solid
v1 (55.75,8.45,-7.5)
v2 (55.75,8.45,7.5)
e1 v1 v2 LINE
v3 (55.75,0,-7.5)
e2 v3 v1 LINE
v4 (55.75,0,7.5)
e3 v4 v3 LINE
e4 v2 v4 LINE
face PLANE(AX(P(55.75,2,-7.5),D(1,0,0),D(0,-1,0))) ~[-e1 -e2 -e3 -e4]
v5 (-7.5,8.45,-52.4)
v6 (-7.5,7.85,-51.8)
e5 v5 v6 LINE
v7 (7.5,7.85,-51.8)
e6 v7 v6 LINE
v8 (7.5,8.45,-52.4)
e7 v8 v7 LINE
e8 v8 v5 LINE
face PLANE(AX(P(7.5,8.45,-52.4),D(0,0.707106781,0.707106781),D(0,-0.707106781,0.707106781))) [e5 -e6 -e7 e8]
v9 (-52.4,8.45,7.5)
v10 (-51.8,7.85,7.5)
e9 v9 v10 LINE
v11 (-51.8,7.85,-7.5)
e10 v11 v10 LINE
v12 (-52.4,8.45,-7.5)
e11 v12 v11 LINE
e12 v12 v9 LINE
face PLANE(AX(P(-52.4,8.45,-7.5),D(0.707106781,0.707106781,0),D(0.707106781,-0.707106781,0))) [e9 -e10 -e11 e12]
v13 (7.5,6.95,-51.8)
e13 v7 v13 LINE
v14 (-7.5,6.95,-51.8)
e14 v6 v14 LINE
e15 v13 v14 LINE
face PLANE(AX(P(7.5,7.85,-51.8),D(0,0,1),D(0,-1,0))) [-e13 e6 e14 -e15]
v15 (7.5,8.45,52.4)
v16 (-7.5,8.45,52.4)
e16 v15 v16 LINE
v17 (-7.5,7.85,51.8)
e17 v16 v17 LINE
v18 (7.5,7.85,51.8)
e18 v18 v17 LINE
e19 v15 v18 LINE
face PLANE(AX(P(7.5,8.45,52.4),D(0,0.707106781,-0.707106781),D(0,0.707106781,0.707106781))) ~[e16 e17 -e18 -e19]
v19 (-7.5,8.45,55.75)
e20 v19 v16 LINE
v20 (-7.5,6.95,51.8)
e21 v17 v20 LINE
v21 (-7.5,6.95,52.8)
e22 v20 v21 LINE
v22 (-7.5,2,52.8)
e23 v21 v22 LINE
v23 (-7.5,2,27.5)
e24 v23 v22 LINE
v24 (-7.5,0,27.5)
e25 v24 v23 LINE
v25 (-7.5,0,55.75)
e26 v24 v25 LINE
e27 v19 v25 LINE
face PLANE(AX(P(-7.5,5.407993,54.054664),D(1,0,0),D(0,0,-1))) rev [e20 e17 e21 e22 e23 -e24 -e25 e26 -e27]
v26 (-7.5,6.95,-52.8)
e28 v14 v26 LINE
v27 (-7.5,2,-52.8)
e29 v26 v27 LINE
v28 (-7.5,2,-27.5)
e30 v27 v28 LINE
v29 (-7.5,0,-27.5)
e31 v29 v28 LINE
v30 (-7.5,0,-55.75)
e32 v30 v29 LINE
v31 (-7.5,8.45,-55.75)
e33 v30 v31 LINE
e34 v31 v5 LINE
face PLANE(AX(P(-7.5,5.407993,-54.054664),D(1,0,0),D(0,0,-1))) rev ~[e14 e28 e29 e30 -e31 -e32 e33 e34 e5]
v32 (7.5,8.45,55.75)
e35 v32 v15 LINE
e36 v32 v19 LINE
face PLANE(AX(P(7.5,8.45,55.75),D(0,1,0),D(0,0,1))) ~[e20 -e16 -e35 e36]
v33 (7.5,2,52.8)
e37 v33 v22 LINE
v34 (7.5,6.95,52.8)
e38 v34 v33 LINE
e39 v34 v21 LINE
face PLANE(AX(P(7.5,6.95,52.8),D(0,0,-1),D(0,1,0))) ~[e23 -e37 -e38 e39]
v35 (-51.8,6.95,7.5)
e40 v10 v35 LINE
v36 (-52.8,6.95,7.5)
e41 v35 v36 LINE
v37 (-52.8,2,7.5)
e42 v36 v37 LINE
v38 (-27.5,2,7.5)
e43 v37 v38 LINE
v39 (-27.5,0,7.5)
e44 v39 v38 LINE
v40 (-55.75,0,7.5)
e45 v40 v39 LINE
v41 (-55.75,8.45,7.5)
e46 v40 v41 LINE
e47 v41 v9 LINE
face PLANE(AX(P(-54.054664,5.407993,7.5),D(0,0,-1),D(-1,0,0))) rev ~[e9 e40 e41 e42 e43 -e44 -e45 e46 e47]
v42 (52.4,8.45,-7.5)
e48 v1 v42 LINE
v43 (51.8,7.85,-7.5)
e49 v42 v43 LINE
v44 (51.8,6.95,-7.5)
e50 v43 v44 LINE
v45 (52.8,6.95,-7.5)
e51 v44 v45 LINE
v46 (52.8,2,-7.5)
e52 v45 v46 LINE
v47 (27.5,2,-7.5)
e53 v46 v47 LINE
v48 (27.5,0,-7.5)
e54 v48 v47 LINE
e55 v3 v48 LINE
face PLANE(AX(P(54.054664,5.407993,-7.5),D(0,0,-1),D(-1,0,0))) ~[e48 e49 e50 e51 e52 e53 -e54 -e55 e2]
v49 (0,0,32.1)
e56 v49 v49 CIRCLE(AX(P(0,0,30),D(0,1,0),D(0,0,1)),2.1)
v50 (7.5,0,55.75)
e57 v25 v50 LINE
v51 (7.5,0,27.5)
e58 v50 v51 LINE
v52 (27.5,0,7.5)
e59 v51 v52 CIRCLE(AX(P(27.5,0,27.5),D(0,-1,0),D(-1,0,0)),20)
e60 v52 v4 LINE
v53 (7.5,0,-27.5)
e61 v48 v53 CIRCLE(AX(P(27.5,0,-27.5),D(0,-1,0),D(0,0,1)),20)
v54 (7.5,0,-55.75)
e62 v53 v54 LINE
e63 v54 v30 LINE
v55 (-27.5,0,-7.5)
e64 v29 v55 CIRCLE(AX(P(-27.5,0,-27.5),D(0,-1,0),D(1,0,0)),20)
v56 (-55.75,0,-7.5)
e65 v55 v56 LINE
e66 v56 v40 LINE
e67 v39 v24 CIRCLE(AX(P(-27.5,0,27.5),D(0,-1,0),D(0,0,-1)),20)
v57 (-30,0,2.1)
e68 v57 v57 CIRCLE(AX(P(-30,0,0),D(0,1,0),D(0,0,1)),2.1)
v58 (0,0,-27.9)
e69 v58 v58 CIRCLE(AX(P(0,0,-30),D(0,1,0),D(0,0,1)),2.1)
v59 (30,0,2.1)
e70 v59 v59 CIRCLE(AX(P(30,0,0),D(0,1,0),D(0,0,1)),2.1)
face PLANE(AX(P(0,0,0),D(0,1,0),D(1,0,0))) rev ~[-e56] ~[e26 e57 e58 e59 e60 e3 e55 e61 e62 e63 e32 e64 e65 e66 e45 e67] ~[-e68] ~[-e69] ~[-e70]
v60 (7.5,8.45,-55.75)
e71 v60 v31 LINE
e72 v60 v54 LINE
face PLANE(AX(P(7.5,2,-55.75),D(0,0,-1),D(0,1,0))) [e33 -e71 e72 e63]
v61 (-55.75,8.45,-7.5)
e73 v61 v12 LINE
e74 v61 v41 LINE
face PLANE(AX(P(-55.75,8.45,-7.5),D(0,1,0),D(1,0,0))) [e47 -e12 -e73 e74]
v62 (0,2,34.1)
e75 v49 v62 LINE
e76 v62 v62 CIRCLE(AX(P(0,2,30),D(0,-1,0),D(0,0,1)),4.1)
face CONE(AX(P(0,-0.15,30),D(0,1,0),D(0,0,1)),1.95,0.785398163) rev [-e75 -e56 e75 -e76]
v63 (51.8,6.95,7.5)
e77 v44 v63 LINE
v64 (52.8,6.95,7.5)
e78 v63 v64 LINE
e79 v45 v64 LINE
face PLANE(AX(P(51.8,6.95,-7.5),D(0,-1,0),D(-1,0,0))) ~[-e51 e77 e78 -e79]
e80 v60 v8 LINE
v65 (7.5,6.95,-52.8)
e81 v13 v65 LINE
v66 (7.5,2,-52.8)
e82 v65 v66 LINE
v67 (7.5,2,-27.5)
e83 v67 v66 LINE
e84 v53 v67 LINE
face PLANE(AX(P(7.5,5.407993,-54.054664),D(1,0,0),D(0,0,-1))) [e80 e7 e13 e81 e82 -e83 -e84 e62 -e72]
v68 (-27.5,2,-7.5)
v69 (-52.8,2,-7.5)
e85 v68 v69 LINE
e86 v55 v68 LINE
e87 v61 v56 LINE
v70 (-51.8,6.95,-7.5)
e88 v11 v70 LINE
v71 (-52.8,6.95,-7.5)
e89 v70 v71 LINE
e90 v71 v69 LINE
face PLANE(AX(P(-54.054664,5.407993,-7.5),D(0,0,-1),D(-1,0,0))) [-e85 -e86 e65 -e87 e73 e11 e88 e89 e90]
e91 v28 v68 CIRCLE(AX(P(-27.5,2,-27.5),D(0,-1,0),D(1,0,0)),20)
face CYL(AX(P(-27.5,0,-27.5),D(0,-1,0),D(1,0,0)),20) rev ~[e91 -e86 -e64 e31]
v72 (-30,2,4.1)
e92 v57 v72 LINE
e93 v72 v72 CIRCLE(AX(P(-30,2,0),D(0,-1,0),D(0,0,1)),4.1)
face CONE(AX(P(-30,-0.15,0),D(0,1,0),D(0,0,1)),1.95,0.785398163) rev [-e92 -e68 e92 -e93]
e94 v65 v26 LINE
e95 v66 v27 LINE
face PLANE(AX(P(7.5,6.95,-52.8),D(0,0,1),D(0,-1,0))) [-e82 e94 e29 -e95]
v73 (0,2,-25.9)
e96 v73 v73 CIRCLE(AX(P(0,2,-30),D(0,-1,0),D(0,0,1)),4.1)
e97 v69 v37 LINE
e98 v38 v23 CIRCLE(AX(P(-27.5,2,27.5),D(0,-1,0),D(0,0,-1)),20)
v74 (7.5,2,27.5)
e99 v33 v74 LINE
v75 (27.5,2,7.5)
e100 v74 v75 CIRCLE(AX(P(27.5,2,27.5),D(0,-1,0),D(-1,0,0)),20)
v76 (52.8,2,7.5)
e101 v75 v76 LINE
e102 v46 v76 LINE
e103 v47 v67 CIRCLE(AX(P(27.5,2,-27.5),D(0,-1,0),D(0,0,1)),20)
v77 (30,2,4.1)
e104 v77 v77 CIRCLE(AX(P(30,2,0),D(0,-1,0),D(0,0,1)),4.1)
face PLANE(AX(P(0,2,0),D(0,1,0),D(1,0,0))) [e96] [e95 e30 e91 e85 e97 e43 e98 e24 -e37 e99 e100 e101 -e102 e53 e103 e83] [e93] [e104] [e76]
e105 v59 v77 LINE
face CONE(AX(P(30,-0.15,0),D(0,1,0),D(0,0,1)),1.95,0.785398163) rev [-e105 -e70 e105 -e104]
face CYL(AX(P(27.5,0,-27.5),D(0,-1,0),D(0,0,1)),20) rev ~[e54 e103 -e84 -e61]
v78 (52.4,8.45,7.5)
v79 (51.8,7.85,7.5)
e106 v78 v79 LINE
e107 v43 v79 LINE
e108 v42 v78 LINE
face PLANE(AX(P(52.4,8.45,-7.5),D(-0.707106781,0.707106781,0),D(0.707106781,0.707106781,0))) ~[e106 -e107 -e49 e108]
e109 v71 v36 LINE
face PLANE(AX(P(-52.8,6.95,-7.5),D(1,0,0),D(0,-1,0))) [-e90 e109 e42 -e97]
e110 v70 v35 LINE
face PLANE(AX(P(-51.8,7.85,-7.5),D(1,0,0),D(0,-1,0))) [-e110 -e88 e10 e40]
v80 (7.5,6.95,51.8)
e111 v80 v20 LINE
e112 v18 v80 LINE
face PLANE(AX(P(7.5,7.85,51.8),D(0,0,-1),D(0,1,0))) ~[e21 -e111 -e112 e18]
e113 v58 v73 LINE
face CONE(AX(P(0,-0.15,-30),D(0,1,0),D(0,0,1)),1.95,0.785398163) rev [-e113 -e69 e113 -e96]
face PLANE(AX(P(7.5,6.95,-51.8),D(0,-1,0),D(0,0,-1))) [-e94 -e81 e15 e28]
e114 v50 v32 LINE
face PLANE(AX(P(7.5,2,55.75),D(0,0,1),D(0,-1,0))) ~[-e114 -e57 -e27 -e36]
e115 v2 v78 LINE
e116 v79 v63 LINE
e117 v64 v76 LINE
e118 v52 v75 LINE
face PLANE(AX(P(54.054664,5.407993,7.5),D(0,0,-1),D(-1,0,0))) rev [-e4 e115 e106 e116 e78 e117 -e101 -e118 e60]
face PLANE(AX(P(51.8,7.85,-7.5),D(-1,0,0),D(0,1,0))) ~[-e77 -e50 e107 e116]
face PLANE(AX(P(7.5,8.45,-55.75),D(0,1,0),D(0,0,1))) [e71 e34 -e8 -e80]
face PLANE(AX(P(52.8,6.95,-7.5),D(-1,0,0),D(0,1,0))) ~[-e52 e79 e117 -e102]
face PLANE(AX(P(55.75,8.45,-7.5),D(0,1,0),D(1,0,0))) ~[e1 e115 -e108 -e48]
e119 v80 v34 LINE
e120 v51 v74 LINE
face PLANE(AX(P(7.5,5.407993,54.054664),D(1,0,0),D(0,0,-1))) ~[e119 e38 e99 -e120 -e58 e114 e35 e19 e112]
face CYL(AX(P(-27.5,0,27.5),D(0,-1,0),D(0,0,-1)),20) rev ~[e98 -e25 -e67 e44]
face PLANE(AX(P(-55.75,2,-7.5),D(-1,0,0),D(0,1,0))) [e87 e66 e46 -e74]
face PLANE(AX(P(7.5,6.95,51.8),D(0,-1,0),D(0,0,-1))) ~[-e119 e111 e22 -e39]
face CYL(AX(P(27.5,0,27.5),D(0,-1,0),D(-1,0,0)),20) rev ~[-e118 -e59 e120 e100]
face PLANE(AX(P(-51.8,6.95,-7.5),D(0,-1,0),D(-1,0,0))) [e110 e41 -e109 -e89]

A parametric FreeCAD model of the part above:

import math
import FreeCAD as App
import Part
import Sketcher
Q = App.Units.Quantity


def add_polygon(sketch, points):
    """Adds a closed chain of lines whose ends are joined by coincident constraints."""
    first, n = sketch.GeometryCount, len(points)
    for a, b in zip(points, points[1:] + points[:1]):
        sketch.addGeometry(Part.LineSegment(App.Vector(*a, 0), App.Vector(*b, 0)), False)
    for i in range(n):
        sketch.addConstraint(Sketcher.Constraint("Coincident", first + i, 2, first + (i + 1) % n, 1))

doc = App.newDocument("Part")
body = doc.addObject("PartDesign::Body", "Body")

# Sketch on XZ plane
sketch1 = doc.addObject("Sketcher::SketchObject", "Sketch")
body.addObject(sketch1)
sketch1.AttachmentSupport = (doc.XZ_Plane, [""])
sketch1.MapMode = "FlatFace"
sketch1.addGeometry([
    Part.LineSegment(App.Vector(-7.5, -55.75, 0), App.Vector(-7.5, -27.5, 0)),  # 0
    Part.ArcOfCircle(Part.Circle(App.Vector(-27.5, -27.5, 0), App.Vector(0, 0, 1), 20), math.radians(0), math.radians(90)),  # 1
    Part.LineSegment(App.Vector(-27.5, -7.5, 0), App.Vector(-55.75, -7.5, 0)),  # 2
    Part.LineSegment(App.Vector(-55.75, -7.5, 0), App.Vector(-55.75, 7.5, 0)),  # 3
    Part.LineSegment(App.Vector(-55.75, 7.5, 0), App.Vector(-27.5, 7.5, 0)),  # 4
    Part.ArcOfCircle(Part.Circle(App.Vector(-27.5, 27.5, 0), App.Vector(0, 0, 1), 20), math.radians(-90), math.radians(0)),  # 5
    Part.LineSegment(App.Vector(-7.5, 27.5, 0), App.Vector(-7.5, 55.75, 0)),  # 6
    Part.LineSegment(App.Vector(-7.5, 55.75, 0), App.Vector(7.5, 55.75, 0)),  # 7
    Part.LineSegment(App.Vector(7.5, 55.75, 0), App.Vector(7.5, 27.5, 0)),  # 8
    Part.ArcOfCircle(Part.Circle(App.Vector(27.5, 27.5, 0), App.Vector(0, 0, 1), 20), math.radians(180), math.radians(270)),  # 9
    Part.LineSegment(App.Vector(27.5, 7.5, 0), App.Vector(55.75, 7.5, 0)),  # 10
    Part.LineSegment(App.Vector(55.75, 7.5, 0), App.Vector(55.75, -7.5, 0)),  # 11
    Part.LineSegment(App.Vector(55.75, -7.5, 0), App.Vector(27.5, -7.5, 0)),  # 12
    Part.ArcOfCircle(Part.Circle(App.Vector(27.5, -27.5, 0), App.Vector(0, 0, 1), 20), math.radians(90), math.radians(180)),  # 13
    Part.LineSegment(App.Vector(7.5, -27.5, 0), App.Vector(7.5, -55.75, 0)),  # 14
    Part.LineSegment(App.Vector(7.5, -55.75, 0), App.Vector(-7.5, -55.75, 0)),  # 15
], False)
sketch1.addConstraint([
    Sketcher.Constraint("Tangent", 0, 2, 1, 1),
    Sketcher.Constraint("Tangent", 1, 2, 2, 1),
    Sketcher.Constraint("Coincident", 2, 2, 3, 1),
    Sketcher.Constraint("Coincident", 3, 2, 4, 1),
    Sketcher.Constraint("Tangent", 4, 2, 5, 1),
    Sketcher.Constraint("Tangent", 5, 2, 6, 1),
    Sketcher.Constraint("Coincident", 6, 2, 7, 1),
    Sketcher.Constraint("Coincident", 7, 2, 8, 1),
    Sketcher.Constraint("Tangent", 8, 2, 9, 1),
    Sketcher.Constraint("Tangent", 9, 2, 10, 1),
    Sketcher.Constraint("Coincident", 10, 2, 11, 1),
    Sketcher.Constraint("Coincident", 11, 2, 12, 1),
    Sketcher.Constraint("Tangent", 12, 2, 13, 1),
    Sketcher.Constraint("Tangent", 13, 2, 14, 1),
    Sketcher.Constraint("Coincident", 14, 2, 15, 1),
    Sketcher.Constraint("Coincident", 15, 2, 0, 1),
    Sketcher.Constraint("Vertical", 0),
    Sketcher.Constraint("Horizontal", 2),
    Sketcher.Constraint("Vertical", 3),
    Sketcher.Constraint("Horizontal", 4),
    Sketcher.Constraint("Vertical", 6),
    Sketcher.Constraint("Horizontal", 7),
    Sketcher.Constraint("Vertical", 8),
    Sketcher.Constraint("Horizontal", 10),
    Sketcher.Constraint("Vertical", 11),
    Sketcher.Constraint("Horizontal", 12),
    Sketcher.Constraint("Vertical", 14),
    Sketcher.Constraint("Horizontal", 15),
    Sketcher.Constraint("Equal", 1, 5),
    Sketcher.Constraint("Equal", 5, 9),
    Sketcher.Constraint("Equal", 9, 13),
    Sketcher.Constraint("Symmetric", 1, 3, 9, 3, -1, 1),
    Sketcher.Constraint("Symmetric", 5, 3, 13, 3, -1, 1),
    Sketcher.Constraint("Symmetric", 5, 3, 9, 3, -2),
    Sketcher.Constraint("Equal", 4, 10),
    Sketcher.Constraint("Equal", 12, 0),
    Sketcher.Constraint("Equal", 15, 3),
    Sketcher.Constraint("Equal", 0, 6),
    Sketcher.Constraint("Radius", 1, Q("20 mm")),
    Sketcher.Constraint("DistanceX", 7, 1, 7, 2, Q("15 mm")),
    Sketcher.Constraint("DistanceX", 2, 2, 2, 1, Q("28.25 mm")),
])
pad1 = doc.addObject("PartDesign::Pad", "Pad")
body.addObject(pad1)
pad1.Profile = sketch1
pad1.Length = 2
pad1.Reversed = True

# Sketch on YZ plane
sketch2 = doc.addObject("Sketcher::SketchObject", "Sketch001")
body.addObject(sketch2)
sketch2.AttachmentSupport = (doc.YZ_Plane, [""])
sketch2.MapMode = "FlatFace"
sketch2.AttachmentOffset = App.Placement(App.Vector(0, 0, 7.5), App.Rotation())
add_polygon(sketch2, [(2, -55.75), (8.45, -55.75), (8.45, -52.4), (7.85, -51.8), (6.95, -51.8), (6.95, -52.8), (2, -52.8)])  # lines 0-6
sketch2.addConstraint([
    Sketcher.Constraint("Horizontal", 0),
    Sketcher.Constraint("Vertical", 1),
    Sketcher.Constraint("Horizontal", 3),
    Sketcher.Constraint("Vertical", 4),
    Sketcher.Constraint("Horizontal", 5),
    Sketcher.Constraint("Vertical", 6),
    Sketcher.Constraint("DistanceY", 4, 2, 4, 1, Q("1 mm")),
    Sketcher.Constraint("Angle", 2, Q("135 deg")),
    Sketcher.Constraint("DistanceX", 3, 2, 3, 1, Q("0.9 mm")),
    Sketcher.Constraint("DistanceX", -1, 1, 5, 2, Q("2 mm")),
    Sketcher.Constraint("DistanceX", 0, 1, 0, 2, Q("6.45 mm")),
    Sketcher.Constraint("DistanceX", 5, 2, 5, 1, Q("4.95 mm")),
    Sketcher.Constraint("DistanceY", 1, 1, 1, 2, Q("3.35 mm")),
    Sketcher.Constraint("DistanceY", 1, 2, -1, 1, Q("52.4 mm")),
])
pad2 = doc.addObject("PartDesign::Pad", "Pad001")
body.addObject(pad2)
pad2.Profile = sketch2
pad2.Length = 15
pad2.Reversed = True
doc.recompute()

mirrored = doc.addObject("PartDesign::Mirrored", "Mirrored")
body.addObject(mirrored)
mirrored.Originals = [pad2]
mirrored.MirrorPlane = (doc.XY_Plane, [""])
body.Tip = mirrored

# Sketch on XY plane
sketch3 = doc.addObject("Sketcher::SketchObject", "Sketch002")
body.addObject(sketch3)
sketch3.AttachmentSupport = (doc.XY_Plane, [""])
sketch3.MapMode = "FlatFace"
sketch3.AttachmentOffset = App.Placement(App.Vector(0, 0, -7.5), App.Rotation())
add_polygon(sketch3, [(-55.75, 2), (-55.75, 8.45), (-52.4, 8.45), (-51.8, 7.85), (-51.8, 6.95), (-52.8, 6.95), (-52.8, 2)])  # lines 0-6
sketch3.addConstraint([
    Sketcher.Constraint("Vertical", 0),
    Sketcher.Constraint("Horizontal", 1),
    Sketcher.Constraint("Vertical", 3),
    Sketcher.Constraint("Horizontal", 4),
    Sketcher.Constraint("Vertical", 5),
    Sketcher.Constraint("Horizontal", 6),
    Sketcher.Constraint("DistanceX", 4, 2, 4, 1, Q("1 mm")),
    Sketcher.Constraint("Angle", 2, Q("-45 deg")),
    Sketcher.Constraint("DistanceY", 3, 2, 3, 1, Q("0.9 mm")),
    Sketcher.Constraint("DistanceY", -1, 1, 5, 2, Q("2 mm")),
    Sketcher.Constraint("DistanceX", 1, 1, 1, 2, Q("3.35 mm")),
    Sketcher.Constraint("DistanceX", 6, 2, 6, 1, Q("2.95 mm")),
    Sketcher.Constraint("DistanceY", 0, 1, 0, 2, Q("6.45 mm")),
    Sketcher.Constraint("DistanceX", 1, 2, -1, 1, Q("52.4 mm")),
])
pad3 = doc.addObject("PartDesign::Pad", "Pad002")
body.addObject(pad3)
pad3.Profile = sketch3
pad3.Length = 15
doc.recompute()

mirrored2 = doc.addObject("PartDesign::Mirrored", "Mirrored001")
body.addObject(mirrored2)
mirrored2.Originals = [pad3]
mirrored2.MirrorPlane = (doc.YZ_Plane, [""])
body.Tip = mirrored2

# Sketch on YZ plane
sketch4 = doc.addObject("Sketcher::SketchObject", "Sketch003")
body.addObject(sketch4)
sketch4.AttachmentSupport = (doc.YZ_Plane, [""])
sketch4.MapMode = "FlatFace"
add_polygon(sketch4, [(0, 30), (2, 30), (2, 34.1), (-0.15, 31.95), (0, 31.95)])  # lines 0-4
sketch4.addGeometry(Part.LineSegment(App.Vector(2, 30, 0), App.Vector(-0.15, 30, 0)), True)  # axis
sketch4.addConstraint([
    Sketcher.Constraint("Horizontal", 0),
    Sketcher.Constraint("Vertical", 1),
    Sketcher.Constraint("Horizontal", 3),
    Sketcher.Constraint("Vertical", 4),
    Sketcher.Constraint("Horizontal", 5),
    Sketcher.Constraint("Coincident", 5, 1, 0, 2),
    Sketcher.Constraint("PointOnObject", 3, 2, -2),
    Sketcher.Constraint("Vertical", 2, 2, 5, 2),
    Sketcher.Constraint("DistanceX", 0, 1, 0, 2, Q("2 mm")),
    Sketcher.Constraint("Angle", 2, Q("-135 deg")),
    Sketcher.Constraint("DistanceY", 1, 1, 1, 2, Q("4.1 mm")),
    Sketcher.Constraint("DistanceY", -1, 1, 0, 2, Q("30 mm")),
    Sketcher.Constraint("DistanceX", 3, 1, 3, 2, Q("0.15 mm")),
])
groove = doc.addObject("PartDesign::Groove", "Groove")
body.addObject(groove)
groove.Profile = sketch4
groove.ReferenceAxis = (sketch4, ["Axis0"])
groove.Angle = 360
doc.recompute()

datumline = doc.addObject("PartDesign::Line", "DatumLine")
body.addObject(datumline)
datumline.Placement = App.Placement(App.Vector(0, 0, 0), App.Rotation(App.Vector(0, 0, 1), App.Vector(-0.707106781, 0, -0.707106781)))
linearpattern = doc.addObject("PartDesign::LinearPattern", "LinearPattern")
body.addObject(linearpattern)
linearpattern.Originals = [groove]
linearpattern.Direction = (datumline, [""])
linearpattern.Mode = "offset"
linearpattern.Offset = 42.426407
linearpattern.Occurrences = 2
body.Tip = linearpattern
doc.recompute()

linearpattern2 = doc.addObject("PartDesign::LinearPattern", "LinearPattern001")
body.addObject(linearpattern2)
linearpattern2.Originals = [groove]
linearpattern2.Direction = (doc.Z_Axis, [""])
linearpattern2.Mode = "offset"
linearpattern2.Offset = 60
linearpattern2.Occurrences = 2
linearpattern2.Reversed = True
body.Tip = linearpattern2
doc.recompute()

datumline2 = doc.addObject("PartDesign::Line", "DatumLine001")
body.addObject(datumline2)
datumline2.Placement = App.Placement(App.Vector(0, 0, 0), App.Rotation(App.Vector(0, 0, 1), App.Vector(0.707106781, 0, -0.707106781)))
linearpattern3 = doc.addObject("PartDesign::LinearPattern", "LinearPattern002")
body.addObject(linearpattern3)
linearpattern3.Originals = [groove]
linearpattern3.Direction = (datumline2, [""])
linearpattern3.Mode = "offset"
linearpattern3.Offset = 42.426407
linearpattern3.Occurrences = 2
body.Tip = linearpattern3

doc.recompute()
